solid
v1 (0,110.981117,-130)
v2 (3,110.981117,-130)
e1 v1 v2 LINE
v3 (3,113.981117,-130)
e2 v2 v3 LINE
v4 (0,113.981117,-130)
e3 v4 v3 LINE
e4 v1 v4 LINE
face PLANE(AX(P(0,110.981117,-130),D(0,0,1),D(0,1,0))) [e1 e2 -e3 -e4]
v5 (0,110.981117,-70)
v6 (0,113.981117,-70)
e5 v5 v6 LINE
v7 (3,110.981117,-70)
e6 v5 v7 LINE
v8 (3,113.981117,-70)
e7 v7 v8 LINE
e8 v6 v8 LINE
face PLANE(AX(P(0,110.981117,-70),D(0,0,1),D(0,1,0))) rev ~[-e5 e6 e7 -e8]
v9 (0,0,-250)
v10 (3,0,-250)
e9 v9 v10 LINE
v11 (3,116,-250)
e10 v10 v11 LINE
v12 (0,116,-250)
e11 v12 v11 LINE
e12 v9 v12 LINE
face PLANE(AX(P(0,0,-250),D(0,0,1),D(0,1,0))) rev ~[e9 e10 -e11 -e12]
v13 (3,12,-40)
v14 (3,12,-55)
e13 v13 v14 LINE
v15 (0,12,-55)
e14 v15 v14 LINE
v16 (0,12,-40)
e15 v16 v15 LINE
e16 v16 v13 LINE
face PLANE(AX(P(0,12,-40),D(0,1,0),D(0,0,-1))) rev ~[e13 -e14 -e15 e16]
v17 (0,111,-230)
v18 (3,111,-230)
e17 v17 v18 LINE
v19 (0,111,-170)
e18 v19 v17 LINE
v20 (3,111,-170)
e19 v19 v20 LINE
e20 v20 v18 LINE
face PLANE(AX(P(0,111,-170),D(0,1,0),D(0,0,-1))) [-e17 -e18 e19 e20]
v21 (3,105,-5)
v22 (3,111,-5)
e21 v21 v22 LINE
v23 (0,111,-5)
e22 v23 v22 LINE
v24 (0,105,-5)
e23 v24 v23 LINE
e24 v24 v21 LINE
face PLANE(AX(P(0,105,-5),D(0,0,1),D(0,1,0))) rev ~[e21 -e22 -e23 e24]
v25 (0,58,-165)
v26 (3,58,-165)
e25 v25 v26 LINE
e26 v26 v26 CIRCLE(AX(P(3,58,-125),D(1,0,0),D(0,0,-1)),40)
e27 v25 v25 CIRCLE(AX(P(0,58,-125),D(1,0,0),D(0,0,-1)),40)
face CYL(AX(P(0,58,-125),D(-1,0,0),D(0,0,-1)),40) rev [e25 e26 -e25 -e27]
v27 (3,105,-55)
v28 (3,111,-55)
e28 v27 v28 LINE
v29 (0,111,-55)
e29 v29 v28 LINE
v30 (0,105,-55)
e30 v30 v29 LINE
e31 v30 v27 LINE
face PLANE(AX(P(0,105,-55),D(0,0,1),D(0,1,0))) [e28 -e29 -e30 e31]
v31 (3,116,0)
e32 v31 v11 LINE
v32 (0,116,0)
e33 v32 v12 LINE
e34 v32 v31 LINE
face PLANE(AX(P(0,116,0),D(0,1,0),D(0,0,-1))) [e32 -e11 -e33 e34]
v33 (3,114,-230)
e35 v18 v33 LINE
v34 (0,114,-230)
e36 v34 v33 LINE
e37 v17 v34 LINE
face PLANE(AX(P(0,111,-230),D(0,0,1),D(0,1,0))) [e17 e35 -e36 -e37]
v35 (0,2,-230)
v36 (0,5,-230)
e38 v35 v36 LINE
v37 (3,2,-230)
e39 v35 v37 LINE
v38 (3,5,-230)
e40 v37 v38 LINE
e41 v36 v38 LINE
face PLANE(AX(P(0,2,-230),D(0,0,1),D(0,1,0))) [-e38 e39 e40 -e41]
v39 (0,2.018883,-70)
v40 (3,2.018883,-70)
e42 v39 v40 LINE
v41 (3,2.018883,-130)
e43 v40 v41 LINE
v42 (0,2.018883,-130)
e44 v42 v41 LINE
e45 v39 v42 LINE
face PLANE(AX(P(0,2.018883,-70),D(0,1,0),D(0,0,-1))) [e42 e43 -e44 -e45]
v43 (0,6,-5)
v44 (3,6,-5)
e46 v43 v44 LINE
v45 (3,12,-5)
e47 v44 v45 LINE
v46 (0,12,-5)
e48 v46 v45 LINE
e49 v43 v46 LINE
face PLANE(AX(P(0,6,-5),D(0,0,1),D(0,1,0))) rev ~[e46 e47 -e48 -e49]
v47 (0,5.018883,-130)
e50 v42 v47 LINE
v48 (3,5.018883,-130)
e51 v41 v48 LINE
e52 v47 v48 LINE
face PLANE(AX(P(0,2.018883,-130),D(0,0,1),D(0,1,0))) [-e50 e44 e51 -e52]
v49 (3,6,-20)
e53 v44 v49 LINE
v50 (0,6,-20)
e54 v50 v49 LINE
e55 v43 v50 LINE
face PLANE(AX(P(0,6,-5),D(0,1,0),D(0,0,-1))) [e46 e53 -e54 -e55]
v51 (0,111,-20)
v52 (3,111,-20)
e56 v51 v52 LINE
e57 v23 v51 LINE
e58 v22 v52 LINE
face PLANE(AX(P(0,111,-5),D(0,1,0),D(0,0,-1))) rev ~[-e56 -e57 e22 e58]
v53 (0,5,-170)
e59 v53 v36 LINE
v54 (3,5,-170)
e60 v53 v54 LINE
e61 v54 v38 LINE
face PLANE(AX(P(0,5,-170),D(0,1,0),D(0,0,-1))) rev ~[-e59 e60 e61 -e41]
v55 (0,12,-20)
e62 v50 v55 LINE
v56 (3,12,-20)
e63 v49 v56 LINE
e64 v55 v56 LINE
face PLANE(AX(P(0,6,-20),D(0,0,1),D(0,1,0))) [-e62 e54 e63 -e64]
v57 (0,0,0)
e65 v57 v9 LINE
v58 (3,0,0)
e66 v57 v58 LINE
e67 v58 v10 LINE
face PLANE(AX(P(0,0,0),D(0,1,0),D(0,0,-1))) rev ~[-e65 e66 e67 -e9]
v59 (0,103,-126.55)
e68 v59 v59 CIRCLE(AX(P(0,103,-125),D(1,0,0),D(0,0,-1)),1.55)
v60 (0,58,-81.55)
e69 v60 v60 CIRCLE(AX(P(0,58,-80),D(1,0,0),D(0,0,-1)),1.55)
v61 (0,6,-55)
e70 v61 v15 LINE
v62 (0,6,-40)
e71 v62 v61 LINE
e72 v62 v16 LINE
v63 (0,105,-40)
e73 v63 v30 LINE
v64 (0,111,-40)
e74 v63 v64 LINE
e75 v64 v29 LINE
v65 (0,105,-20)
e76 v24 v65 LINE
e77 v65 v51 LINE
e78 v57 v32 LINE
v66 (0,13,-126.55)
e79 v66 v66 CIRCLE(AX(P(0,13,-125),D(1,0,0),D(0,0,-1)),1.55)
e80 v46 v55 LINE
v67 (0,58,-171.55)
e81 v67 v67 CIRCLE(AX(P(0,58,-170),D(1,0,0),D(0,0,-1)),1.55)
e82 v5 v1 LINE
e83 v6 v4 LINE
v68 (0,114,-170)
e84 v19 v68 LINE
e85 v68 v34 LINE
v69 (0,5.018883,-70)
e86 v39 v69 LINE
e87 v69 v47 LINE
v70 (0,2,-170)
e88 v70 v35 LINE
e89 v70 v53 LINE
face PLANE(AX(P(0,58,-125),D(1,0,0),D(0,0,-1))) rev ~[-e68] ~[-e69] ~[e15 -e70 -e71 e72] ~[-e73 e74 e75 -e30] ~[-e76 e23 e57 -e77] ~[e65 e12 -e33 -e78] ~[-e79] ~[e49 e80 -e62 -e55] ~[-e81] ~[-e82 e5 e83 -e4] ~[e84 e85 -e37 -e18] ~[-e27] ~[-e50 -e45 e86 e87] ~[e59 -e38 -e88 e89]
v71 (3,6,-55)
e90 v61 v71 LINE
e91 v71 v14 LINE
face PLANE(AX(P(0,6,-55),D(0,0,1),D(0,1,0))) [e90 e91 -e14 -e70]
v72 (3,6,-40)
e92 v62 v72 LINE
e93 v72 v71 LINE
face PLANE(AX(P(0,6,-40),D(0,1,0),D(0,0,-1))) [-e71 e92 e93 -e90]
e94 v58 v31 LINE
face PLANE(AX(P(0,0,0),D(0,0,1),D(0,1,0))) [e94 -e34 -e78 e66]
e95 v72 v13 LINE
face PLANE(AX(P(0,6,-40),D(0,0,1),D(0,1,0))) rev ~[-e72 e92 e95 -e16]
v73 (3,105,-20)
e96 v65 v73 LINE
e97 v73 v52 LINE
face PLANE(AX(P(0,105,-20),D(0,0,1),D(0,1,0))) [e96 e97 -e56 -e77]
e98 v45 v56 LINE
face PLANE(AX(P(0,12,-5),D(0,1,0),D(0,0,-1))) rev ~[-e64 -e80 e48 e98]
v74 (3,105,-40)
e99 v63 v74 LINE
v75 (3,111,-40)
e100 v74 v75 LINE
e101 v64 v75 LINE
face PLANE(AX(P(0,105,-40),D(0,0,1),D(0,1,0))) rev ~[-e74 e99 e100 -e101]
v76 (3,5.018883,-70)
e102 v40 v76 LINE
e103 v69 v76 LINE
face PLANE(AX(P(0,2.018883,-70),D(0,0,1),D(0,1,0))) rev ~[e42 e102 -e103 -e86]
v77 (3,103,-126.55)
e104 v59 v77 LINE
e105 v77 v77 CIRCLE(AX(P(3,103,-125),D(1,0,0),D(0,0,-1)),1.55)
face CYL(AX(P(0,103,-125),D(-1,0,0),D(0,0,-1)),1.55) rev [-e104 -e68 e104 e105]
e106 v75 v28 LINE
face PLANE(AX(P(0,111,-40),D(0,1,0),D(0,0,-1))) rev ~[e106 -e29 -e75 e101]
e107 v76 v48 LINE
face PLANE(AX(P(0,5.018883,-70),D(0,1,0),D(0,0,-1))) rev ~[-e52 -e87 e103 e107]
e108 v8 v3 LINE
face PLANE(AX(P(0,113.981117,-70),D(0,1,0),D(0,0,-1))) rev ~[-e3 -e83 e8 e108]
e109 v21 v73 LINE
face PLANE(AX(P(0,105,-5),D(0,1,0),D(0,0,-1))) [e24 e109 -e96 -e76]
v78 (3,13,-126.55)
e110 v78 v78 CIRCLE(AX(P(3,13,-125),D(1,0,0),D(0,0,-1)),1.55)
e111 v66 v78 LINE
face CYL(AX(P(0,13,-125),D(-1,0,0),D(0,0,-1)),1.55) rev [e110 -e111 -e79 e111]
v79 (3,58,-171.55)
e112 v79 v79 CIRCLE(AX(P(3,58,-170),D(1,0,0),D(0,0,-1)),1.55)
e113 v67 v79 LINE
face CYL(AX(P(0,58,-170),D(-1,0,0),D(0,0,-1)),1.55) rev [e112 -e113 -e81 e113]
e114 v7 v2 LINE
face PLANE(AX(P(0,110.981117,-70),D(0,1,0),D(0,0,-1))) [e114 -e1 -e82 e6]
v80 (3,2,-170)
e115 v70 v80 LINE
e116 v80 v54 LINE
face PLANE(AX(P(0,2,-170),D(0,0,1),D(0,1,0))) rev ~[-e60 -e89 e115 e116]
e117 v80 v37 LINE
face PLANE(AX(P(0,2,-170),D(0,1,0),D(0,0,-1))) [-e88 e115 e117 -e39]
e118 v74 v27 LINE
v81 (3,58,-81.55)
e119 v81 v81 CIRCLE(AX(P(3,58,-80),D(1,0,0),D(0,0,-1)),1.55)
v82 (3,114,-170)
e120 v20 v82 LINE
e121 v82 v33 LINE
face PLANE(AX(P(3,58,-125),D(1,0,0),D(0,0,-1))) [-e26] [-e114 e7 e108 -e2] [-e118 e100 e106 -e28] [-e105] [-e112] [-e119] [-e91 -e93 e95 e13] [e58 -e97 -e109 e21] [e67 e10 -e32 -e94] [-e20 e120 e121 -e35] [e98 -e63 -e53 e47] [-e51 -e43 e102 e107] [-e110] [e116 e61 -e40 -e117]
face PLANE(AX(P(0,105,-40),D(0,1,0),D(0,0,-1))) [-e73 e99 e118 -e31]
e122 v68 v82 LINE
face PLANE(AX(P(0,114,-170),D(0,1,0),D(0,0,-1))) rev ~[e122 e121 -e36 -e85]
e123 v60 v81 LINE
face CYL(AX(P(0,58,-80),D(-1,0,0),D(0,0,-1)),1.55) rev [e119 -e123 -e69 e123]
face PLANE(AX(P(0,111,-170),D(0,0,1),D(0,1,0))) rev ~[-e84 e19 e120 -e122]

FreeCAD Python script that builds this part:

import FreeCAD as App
import Part
import Sketcher
from FreeCAD import Vector
Q = App.Units.Quantity

doc = App.newDocument("Part")
body = doc.addObject("PartDesign::Body", "Body")

# Sketch on YZ plane
sketch1 = body.newObject("Sketcher::SketchObject", "Sketch")
sketch1.AttachmentSupport = (doc.getObject("YZ_Plane"), [""])
sketch1.MapMode = "FlatFace"
sketch1.addGeometry(Part.LineSegment(Vector(116, 0, 0), Vector(0, 0, 0)), False)
sketch1.addGeometry(Part.LineSegment(Vector(0, 0, 0), Vector(0, -250, 0)), False)
sketch1.addGeometry(Part.LineSegment(Vector(0, -250, 0), Vector(116, -250, 0)), False)
sketch1.addGeometry(Part.LineSegment(Vector(116, -250, 0), Vector(116, 0, 0)), False)
sketch1.addGeometry(Part.LineSegment(Vector(6, -20, 0), Vector(6, -5, 0)), False)
sketch1.addGeometry(Part.LineSegment(Vector(6, -5, 0), Vector(12, -5, 0)), False)
sketch1.addGeometry(Part.LineSegment(Vector(12, -5, 0), Vector(12, -20, 0)), False)
sketch1.addGeometry(Part.LineSegment(Vector(12, -20, 0), Vector(6, -20, 0)), False)
sketch1.addGeometry(Part.LineSegment(Vector(6, -55, 0), Vector(6, -40, 0)), False)
sketch1.addGeometry(Part.LineSegment(Vector(6, -40, 0), Vector(12, -40, 0)), False)
sketch1.addGeometry(Part.LineSegment(Vector(12, -40, 0), Vector(12, -55, 0)), False)
sketch1.addGeometry(Part.LineSegment(Vector(12, -55, 0), Vector(6, -55, 0)), False)
sketch1.addGeometry(Part.LineSegment(Vector(2.018883, -130, 0), Vector(2.018883, -70, 0)), False)
sketch1.addGeometry(Part.LineSegment(Vector(2.018883, -70, 0), Vector(5.018883, -70, 0)), False)
sketch1.addGeometry(Part.LineSegment(Vector(5.018883, -70, 0), Vector(5.018883, -130, 0)), False)
sketch1.addGeometry(Part.LineSegment(Vector(5.018883, -130, 0), Vector(2.018883, -130, 0)), False)
sketch1.addGeometry(Part.Circle(Vector(13, -125, 0), Vector(0, 0, 1), 1.55), False)
sketch1.addGeometry(Part.LineSegment(Vector(2, -230, 0), Vector(2, -170, 0)), False)
sketch1.addGeometry(Part.LineSegment(Vector(2, -170, 0), Vector(5, -170, 0)), False)
sketch1.addGeometry(Part.LineSegment(Vector(5, -170, 0), Vector(5, -230, 0)), False)
sketch1.addGeometry(Part.LineSegment(Vector(5, -230, 0), Vector(2, -230, 0)), False)
sketch1.addGeometry(Part.Circle(Vector(58, -80, 0), Vector(0, 0, 1), 1.55), False)
sketch1.addGeometry(Part.LineSegment(Vector(105, -20, 0), Vector(105, -5, 0)), False)
sketch1.addGeometry(Part.LineSegment(Vector(105, -5, 0), Vector(111, -5, 0)), False)
sketch1.addGeometry(Part.LineSegment(Vector(111, -5, 0), Vector(111, -20, 0)), False)
sketch1.addGeometry(Part.LineSegment(Vector(111, -20, 0), Vector(105, -20, 0)), False)
sketch1.addGeometry(Part.LineSegment(Vector(105, -55, 0), Vector(105, -40, 0)), False)
sketch1.addGeometry(Part.LineSegment(Vector(105, -40, 0), Vector(111, -40, 0)), False)
sketch1.addGeometry(Part.LineSegment(Vector(111, -40, 0), Vector(111, -55, 0)), False)
sketch1.addGeometry(Part.LineSegment(Vector(111, -55, 0), Vector(105, -55, 0)), False)
sketch1.addGeometry(Part.LineSegment(Vector(110.981117, -130, 0), Vector(110.981117, -70, 0)), False)
sketch1.addGeometry(Part.LineSegment(Vector(110.981117, -70, 0), Vector(113.981117, -70, 0)), False)
sketch1.addGeometry(Part.LineSegment(Vector(113.981117, -70, 0), Vector(113.981117, -130, 0)), False)
sketch1.addGeometry(Part.LineSegment(Vector(113.981117, -130, 0), Vector(110.981117, -130, 0)), False)
sketch1.addGeometry(Part.Circle(Vector(58, -125, 0), Vector(0, 0, 1), 40), False)
sketch1.addGeometry(Part.Circle(Vector(58, -170, 0), Vector(0, 0, 1), 1.55), False)
sketch1.addGeometry(Part.Circle(Vector(103, -125, 0), Vector(0, 0, 1), 1.55), False)
sketch1.addGeometry(Part.LineSegment(Vector(111, -230, 0), Vector(111, -170, 0)), False)
sketch1.addGeometry(Part.LineSegment(Vector(111, -170, 0), Vector(114, -170, 0)), False)
sketch1.addGeometry(Part.LineSegment(Vector(114, -170, 0), Vector(114, -230, 0)), False)
sketch1.addGeometry(Part.LineSegment(Vector(114, -230, 0), Vector(111, -230, 0)), False)
sketch1.addConstraint(Sketcher.Constraint("Coincident", 0, 2, 1, 1))
sketch1.addConstraint(Sketcher.Constraint("Coincident", 1, 2, 2, 1))
sketch1.addConstraint(Sketcher.Constraint("Coincident", 2, 2, 3, 1))
sketch1.addConstraint(Sketcher.Constraint("Coincident", 3, 2, 0, 1))
sketch1.addConstraint(Sketcher.Constraint("Coincident", 4, 2, 5, 1))
sketch1.addConstraint(Sketcher.Constraint("Coincident", 5, 2, 6, 1))
sketch1.addConstraint(Sketcher.Constraint("Coincident", 6, 2, 7, 1))
sketch1.addConstraint(Sketcher.Constraint("Coincident", 7, 2, 4, 1))
sketch1.addConstraint(Sketcher.Constraint("Coincident", 8, 2, 9, 1))
sketch1.addConstraint(Sketcher.Constraint("Coincident", 9, 2, 10, 1))
sketch1.addConstraint(Sketcher.Constraint("Coincident", 10, 2, 11, 1))
sketch1.addConstraint(Sketcher.Constraint("Coincident", 11, 2, 8, 1))
sketch1.addConstraint(Sketcher.Constraint("Coincident", 12, 2, 13, 1))
sketch1.addConstraint(Sketcher.Constraint("Coincident", 13, 2, 14, 1))
sketch1.addConstraint(Sketcher.Constraint("Coincident", 14, 2, 15, 1))
sketch1.addConstraint(Sketcher.Constraint("Coincident", 15, 2, 12, 1))
sketch1.addConstraint(Sketcher.Constraint("Coincident", 17, 2, 18, 1))
sketch1.addConstraint(Sketcher.Constraint("Coincident", 18, 2, 19, 1))
sketch1.addConstraint(Sketcher.Constraint("Coincident", 19, 2, 20, 1))
sketch1.addConstraint(Sketcher.Constraint("Coincident", 20, 2, 17, 1))
sketch1.addConstraint(Sketcher.Constraint("Coincident", 22, 2, 23, 1))
sketch1.addConstraint(Sketcher.Constraint("Coincident", 23, 2, 24, 1))
sketch1.addConstraint(Sketcher.Constraint("Coincident", 24, 2, 25, 1))
sketch1.addConstraint(Sketcher.Constraint("Coincident", 25, 2, 22, 1))
sketch1.addConstraint(Sketcher.Constraint("Coincident", 26, 2, 27, 1))
sketch1.addConstraint(Sketcher.Constraint("Coincident", 27, 2, 28, 1))
sketch1.addConstraint(Sketcher.Constraint("Coincident", 28, 2, 29, 1))
sketch1.addConstraint(Sketcher.Constraint("Coincident", 29, 2, 26, 1))
sketch1.addConstraint(Sketcher.Constraint("Coincident", 30, 2, 31, 1))
sketch1.addConstraint(Sketcher.Constraint("Coincident", 31, 2, 32, 1))
sketch1.addConstraint(Sketcher.Constraint("Coincident", 32, 2, 33, 1))
sketch1.addConstraint(Sketcher.Constraint("Coincident", 33, 2, 30, 1))
sketch1.addConstraint(Sketcher.Constraint("Coincident", 37, 2, 38, 1))
sketch1.addConstraint(Sketcher.Constraint("Coincident", 38, 2, 39, 1))
sketch1.addConstraint(Sketcher.Constraint("Coincident", 39, 2, 40, 1))
sketch1.addConstraint(Sketcher.Constraint("Coincident", 40, 2, 37, 1))
sketch1.addConstraint(Sketcher.Constraint("Horizontal", 0))
sketch1.addConstraint(Sketcher.Constraint("Vertical", 1))
sketch1.addConstraint(Sketcher.Constraint("Horizontal", 2))
sketch1.addConstraint(Sketcher.Constraint("Vertical", 3))
sketch1.addConstraint(Sketcher.Constraint("Vertical", 4))
sketch1.addConstraint(Sketcher.Constraint("Horizontal", 5))
sketch1.addConstraint(Sketcher.Constraint("Vertical", 6))
sketch1.addConstraint(Sketcher.Constraint("Horizontal", 7))
sketch1.addConstraint(Sketcher.Constraint("Vertical", 8))
sketch1.addConstraint(Sketcher.Constraint("Horizontal", 9))
sketch1.addConstraint(Sketcher.Constraint("Vertical", 10))
sketch1.addConstraint(Sketcher.Constraint("Horizontal", 11))
sketch1.addConstraint(Sketcher.Constraint("Vertical", 12))
sketch1.addConstraint(Sketcher.Constraint("Horizontal", 13))
sketch1.addConstraint(Sketcher.Constraint("Vertical", 14))
sketch1.addConstraint(Sketcher.Constraint("Horizontal", 15))
sketch1.addConstraint(Sketcher.Constraint("Vertical", 17))
sketch1.addConstraint(Sketcher.Constraint("Horizontal", 18))
sketch1.addConstraint(Sketcher.Constraint("Vertical", 19))
sketch1.addConstraint(Sketcher.Constraint("Horizontal", 20))
sketch1.addConstraint(Sketcher.Constraint("Vertical", 22))
sketch1.addConstraint(Sketcher.Constraint("Horizontal", 23))
sketch1.addConstraint(Sketcher.Constraint("Vertical", 24))
sketch1.addConstraint(Sketcher.Constraint("Horizontal", 25))
sketch1.addConstraint(Sketcher.Constraint("Vertical", 26))
sketch1.addConstraint(Sketcher.Constraint("Horizontal", 27))
sketch1.addConstraint(Sketcher.Constraint("Vertical", 28))
sketch1.addConstraint(Sketcher.Constraint("Horizontal", 29))
sketch1.addConstraint(Sketcher.Constraint("Vertical", 30))
sketch1.addConstraint(Sketcher.Constraint("Horizontal", 31))
sketch1.addConstraint(Sketcher.Constraint("Vertical", 32))
sketch1.addConstraint(Sketcher.Constraint("Horizontal", 33))
sketch1.addConstraint(Sketcher.Constraint("Vertical", 37))
sketch1.addConstraint(Sketcher.Constraint("Horizontal", 38))
sketch1.addConstraint(Sketcher.Constraint("Vertical", 39))
sketch1.addConstraint(Sketcher.Constraint("Horizontal", 40))
sketch1.addConstraint(Sketcher.Constraint("Coincident", 0, 2, -1, 1))
sketch1.addConstraint(Sketcher.Constraint("Equal", 16, 21))
sketch1.addConstraint(Sketcher.Constraint("Equal", 21, 35))
sketch1.addConstraint(Sketcher.Constraint("Equal", 35, 36))
sketch1.addConstraint(Sketcher.Constraint("Horizontal", 16, 3, 34, 3))
sketch1.addConstraint(Sketcher.Constraint("Horizontal", 34, 3, 36, 3))
sketch1.addConstraint(Sketcher.Constraint("Horizontal", 35, 3, 17, 2))
sketch1.addConstraint(Sketcher.Constraint("Horizontal", 5, 2, 22, 2))
sketch1.addConstraint(Sketcher.Constraint("Horizontal", 7, 2, 24, 2))
sketch1.addConstraint(Sketcher.Constraint("Horizontal", 9, 2, 26, 2))
sketch1.addConstraint(Sketcher.Constraint("Horizontal", 11, 2, 28, 2))
sketch1.addConstraint(Sketcher.Constraint("Horizontal", 13, 2, 30, 2))
sketch1.addConstraint(Sketcher.Constraint("Horizontal", 15, 2, 32, 2))
sketch1.addConstraint(Sketcher.Constraint("Horizontal", 18, 2, 37, 2))
sketch1.addConstraint(Sketcher.Constraint("Horizontal", 20, 2, 39, 2))
sketch1.addConstraint(Sketcher.Constraint("Vertical", 21, 3, 34, 3))
sketch1.addConstraint(Sketcher.Constraint("Vertical", 34, 3, 35, 3))
sketch1.addConstraint(Sketcher.Constraint("Vertical", 7, 2, 8, 2))
sketch1.addConstraint(Sketcher.Constraint("Vertical", 6, 2, 9, 2))
sketch1.addConstraint(Sketcher.Constraint("Vertical", 25, 2, 26, 2))
sketch1.addConstraint(Sketcher.Constraint("Vertical", 24, 2, 27, 2))
sketch1.addConstraint(Sketcher.Constraint("Vertical", 28, 2, 37, 2))
sketch1.addConstraint(Sketcher.Constraint("Equal", 15, 18))
sketch1.addConstraint(Sketcher.Constraint("Equal", 11, 23))
sketch1.addConstraint(Sketcher.Constraint("Equal", 20, 31))
sketch1.addConstraint(Sketcher.Constraint("Equal", 33, 38))
sketch1.addConstraint(Sketcher.Constraint("Equal", 6, 8))
sketch1.addConstraint(Sketcher.Constraint("Equal", 14, 17))
sketch1.addConstraint(Sketcher.Constraint("Diameter", 34, Q("80 mm")))
sketch1.addConstraint(Sketcher.Constraint("Diameter", 16, Q("3.1 mm")))
sketch1.addConstraint(Sketcher.Constraint("DistanceX", 0, 2, 0, 1, Q("116 mm")))
sketch1.addConstraint(Sketcher.Constraint("DistanceX", 5, 1, 5, 2, Q("6 mm")))
sketch1.addConstraint(Sketcher.Constraint("DistanceX", 13, 1, 13, 2, Q("3 mm")))
sketch1.addConstraint(Sketcher.Constraint("DistanceY", 1, 2, 1, 1, Q("250 mm")))
sketch1.addConstraint(Sketcher.Constraint("DistanceY", 4, 1, 4, 2, Q("15 mm")))
sketch1.addConstraint(Sketcher.Constraint("DistanceY", 12, 1, 12, 2, Q("60 mm")))
sketch1.addConstraint(Sketcher.Constraint("DistanceX", -1, 1, 16, 3, Q("13 mm")))
sketch1.addConstraint(Sketcher.Constraint("DistanceY", 16, 3, -1, 1, Q("125 mm")))
sketch1.addConstraint(Sketcher.Constraint("DistanceX", -1, 1, 21, 3, Q("58 mm")))
sketch1.addConstraint(Sketcher.Constraint("DistanceY", 21, 3, -1, 1, Q("80 mm")))
sketch1.addConstraint(Sketcher.Constraint("DistanceY", 35, 3, -1, 1, Q("170 mm")))
sketch1.addConstraint(Sketcher.Constraint("DistanceX", -1, 1, 36, 3, Q("103 mm")))
sketch1.addConstraint(Sketcher.Constraint("DistanceX", -1, 1, 4, 2, Q("6 mm")))
sketch1.addConstraint(Sketcher.Constraint("DistanceY", 4, 2, -1, 1, Q("5 mm")))
sketch1.addConstraint(Sketcher.Constraint("DistanceY", 8, 2, -1, 1, Q("40 mm")))
sketch1.addConstraint(Sketcher.Constraint("DistanceY", 12, 2, -1, 1, Q("70 mm")))
sketch1.addConstraint(Sketcher.Constraint("DistanceX", -1, 1, 17, 2, Q("2 mm")))
sketch1.addConstraint(Sketcher.Constraint("DistanceX", -1, 1, 22, 2, Q("105 mm")))
sketch1.addConstraint(Sketcher.Constraint("DistanceX", -1, 1, 12, 2, Q("2.018883 mm")))
sketch1.addConstraint(Sketcher.Constraint("DistanceX", -1, 1, 30, 2, Q("110.981117 mm")))
pad1 = body.newObject("PartDesign::Pad", "Pad")
pad1.Profile = sketch1
pad1.Length = 3

doc.recompute()
